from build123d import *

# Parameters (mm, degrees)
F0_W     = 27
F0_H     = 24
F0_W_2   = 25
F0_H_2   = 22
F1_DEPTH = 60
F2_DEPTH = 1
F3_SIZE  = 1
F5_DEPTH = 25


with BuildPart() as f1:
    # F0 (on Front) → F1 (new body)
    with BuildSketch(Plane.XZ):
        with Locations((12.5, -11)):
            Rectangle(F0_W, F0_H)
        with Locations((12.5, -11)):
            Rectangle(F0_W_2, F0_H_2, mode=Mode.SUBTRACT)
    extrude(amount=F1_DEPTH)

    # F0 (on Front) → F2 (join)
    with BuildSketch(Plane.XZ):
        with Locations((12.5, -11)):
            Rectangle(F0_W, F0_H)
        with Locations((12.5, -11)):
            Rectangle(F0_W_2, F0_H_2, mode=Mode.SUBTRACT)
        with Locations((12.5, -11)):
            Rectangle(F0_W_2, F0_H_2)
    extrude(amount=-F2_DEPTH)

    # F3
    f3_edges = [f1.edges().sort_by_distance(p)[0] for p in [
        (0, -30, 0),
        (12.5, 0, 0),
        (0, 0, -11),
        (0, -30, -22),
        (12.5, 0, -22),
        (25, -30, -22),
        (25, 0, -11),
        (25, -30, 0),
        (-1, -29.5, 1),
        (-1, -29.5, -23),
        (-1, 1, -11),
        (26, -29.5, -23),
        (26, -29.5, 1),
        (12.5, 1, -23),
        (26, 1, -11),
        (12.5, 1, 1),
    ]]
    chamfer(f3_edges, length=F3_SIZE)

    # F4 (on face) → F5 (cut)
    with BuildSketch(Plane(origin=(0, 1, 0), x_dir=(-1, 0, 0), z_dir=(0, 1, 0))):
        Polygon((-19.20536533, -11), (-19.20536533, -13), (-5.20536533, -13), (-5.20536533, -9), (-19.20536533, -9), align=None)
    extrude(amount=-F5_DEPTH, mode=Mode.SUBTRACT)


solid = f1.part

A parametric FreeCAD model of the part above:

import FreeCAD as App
import Part
import Sketcher
from FreeCAD import Vector


def edges_at(feature, points):
    """Names of the edges that pass closest to the given points."""
    edges = feature.Shape.Edges
    near = lambda p: min(range(len(edges)), key=lambda i: edges[i].distToShape(Part.Vertex(*p))[0])
    return sorted({f"Edge{near(p) + 1}" for p in points})

doc = App.newDocument("Part")
body = doc.addObject("PartDesign::Body", "Body")

# Sketch on XZ plane
sketch1 = doc.addObject("Sketcher::SketchObject", "Sketch")
body.addObject(sketch1)
sketch1.AttachmentSupport = (doc.XZ_Plane, [""])
sketch1.MapMode = "FlatFace"
sketch1.addGeometry([
    Part.LineSegment(Vector(-1, 1, 0), Vector(-1, -23, 0)),  # 0
    Part.LineSegment(Vector(-1, -23, 0), Vector(26, -23, 0)),  # 1
    Part.LineSegment(Vector(26, -23, 0), Vector(26, 1, 0)),  # 2
    Part.LineSegment(Vector(26, 1, 0), Vector(-1, 1, 0)),  # 3
    Part.LineSegment(Vector(25, -22, 0), Vector(0, -22, 0)),  # 4
    Part.LineSegment(Vector(0, -22, 0), Vector(0, 0, 0)),  # 5
    Part.LineSegment(Vector(0, 0, 0), Vector(25, 0, 0)),  # 6
    Part.LineSegment(Vector(25, 0, 0), Vector(25, -22, 0)),  # 7
], False)
sketch1.addConstraint([
    Sketcher.Constraint("Coincident", 0, 2, 1, 1),
    Sketcher.Constraint("Coincident", 1, 2, 2, 1),
    Sketcher.Constraint("Coincident", 2, 2, 3, 1),
    Sketcher.Constraint("Coincident", 3, 2, 0, 1),
    Sketcher.Constraint("Coincident", 4, 2, 5, 1),
    Sketcher.Constraint("Coincident", 5, 2, 6, 1),
    Sketcher.Constraint("Coincident", 6, 2, 7, 1),
    Sketcher.Constraint("Coincident", 7, 2, 4, 1),
    Sketcher.Constraint("Vertical", 0),
    Sketcher.Constraint("Horizontal", 1),
    Sketcher.Constraint("Vertical", 2),
    Sketcher.Constraint("Horizontal", 3),
    Sketcher.Constraint("Horizontal", 4),
    Sketcher.Constraint("Vertical", 5),
    Sketcher.Constraint("Horizontal", 6),
    Sketcher.Constraint("Vertical", 7),
    Sketcher.Constraint("Coincident", 5, 2, -1, 1),
    Sketcher.Constraint("DistanceX", 1, 1, 1, 2, 27.0),
    Sketcher.Constraint("DistanceX", 4, 2, 4, 1, 25.0),
    Sketcher.Constraint("DistanceY", 0, 2, 0, 1, 24.0),
    Sketcher.Constraint("DistanceY", 5, 1, 5, 2, 22.0),
    Sketcher.Constraint("DistanceX", 0, 2, -1, 1, 1.0),
    Sketcher.Constraint("DistanceY", 0, 2, -1, 1, 23.0),
])
pad1 = doc.addObject("PartDesign::Pad", "Pad")
body.addObject(pad1)
pad1.Profile = sketch1
pad1.Length = 60

# Sketch on XZ plane
sketch2 = doc.addObject("Sketcher::SketchObject", "Sketch001")
body.addObject(sketch2)
sketch2.AttachmentSupport = (doc.XZ_Plane, [""])
sketch2.MapMode = "FlatFace"
sketch2.addGeometry([
    Part.LineSegment(Vector(-1, 1, 0), Vector(-1, -23, 0)),
    Part.LineSegment(Vector(-1, -23, 0), Vector(26, -23, 0)),
    Part.LineSegment(Vector(26, -23, 0), Vector(26, 1, 0)),
    Part.LineSegment(Vector(26, 1, 0), Vector(-1, 1, 0)),
], False)
sketch2.addConstraint([
    Sketcher.Constraint("Coincident", 0, 2, 1, 1),
    Sketcher.Constraint("Coincident", 1, 2, 2, 1),
    Sketcher.Constraint("Coincident", 2, 2, 3, 1),
    Sketcher.Constraint("Coincident", 3, 2, 0, 1),
    Sketcher.Constraint("Vertical", 0),
    Sketcher.Constraint("Horizontal", 1),
    Sketcher.Constraint("Vertical", 2),
    Sketcher.Constraint("Horizontal", 3),
    Sketcher.Constraint("DistanceX", 1, 1, 1, 2, 27.0),
    Sketcher.Constraint("DistanceY", 0, 2, 0, 1, 24.0),
    Sketcher.Constraint("DistanceX", 0, 2, -1, 1, 1.0),
    Sketcher.Constraint("DistanceY", 0, 2, -1, 1, 23.0),
])
pad2 = doc.addObject("PartDesign::Pad", "Pad001")
body.addObject(pad2)
pad2.Profile = sketch2
pad2.Length = 1
pad2.Reversed = True
doc.recompute()

chamfer = doc.addObject("PartDesign::Chamfer", "Chamfer")
body.addObject(chamfer)
chamfer.Base = (pad2, edges_at(pad2, [
    (0, -30, 0),
    (12.5, 0, 0),
    (0, 0, -11),
    (0, -30, -22),
    (12.5, 0, -22),
    (25, -30, -22),
    (25, 0, -11),
    (25, -30, 0),
    (-1, -29.5, 1),
    (-1, -29.5, -23),
    (-1, 1, -11),
    (26, -29.5, -23),
    (26, -29.5, 1),
    (12.5, 1, -23),
    (26, 1, -11),
    (12.5, 1, 1),
]))
chamfer.Size = 1

# Sketch on XZ plane
sketch3 = doc.addObject("Sketcher::SketchObject", "Sketch002")
body.addObject(sketch3)
sketch3.AttachmentSupport = (doc.XZ_Plane, [""])
sketch3.MapMode = "FlatFace"
sketch3.AttachmentOffset = App.Placement(Vector(0, 0, -1), App.Rotation())
sketch3.addGeometry([
    Part.LineSegment(Vector(19.205365, -13, 0), Vector(5.205365, -13, 0)),
    Part.LineSegment(Vector(5.205365, -13, 0), Vector(5.205365, -9, 0)),
    Part.LineSegment(Vector(5.205365, -9, 0), Vector(19.205365, -9, 0)),
    Part.LineSegment(Vector(19.205365, -9, 0), Vector(19.205365, -13, 0)),
], False)
sketch3.addConstraint([
    Sketcher.Constraint("Coincident", 0, 2, 1, 1),
    Sketcher.Constraint("Coincident", 1, 2, 2, 1),
    Sketcher.Constraint("Coincident", 2, 2, 3, 1),
    Sketcher.Constraint("Coincident", 3, 2, 0, 1),
    Sketcher.Constraint("Horizontal", 0),
    Sketcher.Constraint("Vertical", 1),
    Sketcher.Constraint("Horizontal", 2),
    Sketcher.Constraint("Vertical", 3),
    Sketcher.Constraint("DistanceX", 0, 2, 0, 1, 14.0),
    Sketcher.Constraint("DistanceY", 1, 1, 1, 2, 4.0),
    Sketcher.Constraint("DistanceY", 0, 2, -1, 1, 13.0),
    Sketcher.Constraint("DistanceX", -1, 1, 0, 2, 5.205365),
])
pocket1 = doc.addObject("PartDesign::Pocket", "Pocket")
body.addObject(pocket1)
pocket1.Profile = sketch3
pocket1.Length = 25
pocket1.Reversed = True

doc.recompute()
